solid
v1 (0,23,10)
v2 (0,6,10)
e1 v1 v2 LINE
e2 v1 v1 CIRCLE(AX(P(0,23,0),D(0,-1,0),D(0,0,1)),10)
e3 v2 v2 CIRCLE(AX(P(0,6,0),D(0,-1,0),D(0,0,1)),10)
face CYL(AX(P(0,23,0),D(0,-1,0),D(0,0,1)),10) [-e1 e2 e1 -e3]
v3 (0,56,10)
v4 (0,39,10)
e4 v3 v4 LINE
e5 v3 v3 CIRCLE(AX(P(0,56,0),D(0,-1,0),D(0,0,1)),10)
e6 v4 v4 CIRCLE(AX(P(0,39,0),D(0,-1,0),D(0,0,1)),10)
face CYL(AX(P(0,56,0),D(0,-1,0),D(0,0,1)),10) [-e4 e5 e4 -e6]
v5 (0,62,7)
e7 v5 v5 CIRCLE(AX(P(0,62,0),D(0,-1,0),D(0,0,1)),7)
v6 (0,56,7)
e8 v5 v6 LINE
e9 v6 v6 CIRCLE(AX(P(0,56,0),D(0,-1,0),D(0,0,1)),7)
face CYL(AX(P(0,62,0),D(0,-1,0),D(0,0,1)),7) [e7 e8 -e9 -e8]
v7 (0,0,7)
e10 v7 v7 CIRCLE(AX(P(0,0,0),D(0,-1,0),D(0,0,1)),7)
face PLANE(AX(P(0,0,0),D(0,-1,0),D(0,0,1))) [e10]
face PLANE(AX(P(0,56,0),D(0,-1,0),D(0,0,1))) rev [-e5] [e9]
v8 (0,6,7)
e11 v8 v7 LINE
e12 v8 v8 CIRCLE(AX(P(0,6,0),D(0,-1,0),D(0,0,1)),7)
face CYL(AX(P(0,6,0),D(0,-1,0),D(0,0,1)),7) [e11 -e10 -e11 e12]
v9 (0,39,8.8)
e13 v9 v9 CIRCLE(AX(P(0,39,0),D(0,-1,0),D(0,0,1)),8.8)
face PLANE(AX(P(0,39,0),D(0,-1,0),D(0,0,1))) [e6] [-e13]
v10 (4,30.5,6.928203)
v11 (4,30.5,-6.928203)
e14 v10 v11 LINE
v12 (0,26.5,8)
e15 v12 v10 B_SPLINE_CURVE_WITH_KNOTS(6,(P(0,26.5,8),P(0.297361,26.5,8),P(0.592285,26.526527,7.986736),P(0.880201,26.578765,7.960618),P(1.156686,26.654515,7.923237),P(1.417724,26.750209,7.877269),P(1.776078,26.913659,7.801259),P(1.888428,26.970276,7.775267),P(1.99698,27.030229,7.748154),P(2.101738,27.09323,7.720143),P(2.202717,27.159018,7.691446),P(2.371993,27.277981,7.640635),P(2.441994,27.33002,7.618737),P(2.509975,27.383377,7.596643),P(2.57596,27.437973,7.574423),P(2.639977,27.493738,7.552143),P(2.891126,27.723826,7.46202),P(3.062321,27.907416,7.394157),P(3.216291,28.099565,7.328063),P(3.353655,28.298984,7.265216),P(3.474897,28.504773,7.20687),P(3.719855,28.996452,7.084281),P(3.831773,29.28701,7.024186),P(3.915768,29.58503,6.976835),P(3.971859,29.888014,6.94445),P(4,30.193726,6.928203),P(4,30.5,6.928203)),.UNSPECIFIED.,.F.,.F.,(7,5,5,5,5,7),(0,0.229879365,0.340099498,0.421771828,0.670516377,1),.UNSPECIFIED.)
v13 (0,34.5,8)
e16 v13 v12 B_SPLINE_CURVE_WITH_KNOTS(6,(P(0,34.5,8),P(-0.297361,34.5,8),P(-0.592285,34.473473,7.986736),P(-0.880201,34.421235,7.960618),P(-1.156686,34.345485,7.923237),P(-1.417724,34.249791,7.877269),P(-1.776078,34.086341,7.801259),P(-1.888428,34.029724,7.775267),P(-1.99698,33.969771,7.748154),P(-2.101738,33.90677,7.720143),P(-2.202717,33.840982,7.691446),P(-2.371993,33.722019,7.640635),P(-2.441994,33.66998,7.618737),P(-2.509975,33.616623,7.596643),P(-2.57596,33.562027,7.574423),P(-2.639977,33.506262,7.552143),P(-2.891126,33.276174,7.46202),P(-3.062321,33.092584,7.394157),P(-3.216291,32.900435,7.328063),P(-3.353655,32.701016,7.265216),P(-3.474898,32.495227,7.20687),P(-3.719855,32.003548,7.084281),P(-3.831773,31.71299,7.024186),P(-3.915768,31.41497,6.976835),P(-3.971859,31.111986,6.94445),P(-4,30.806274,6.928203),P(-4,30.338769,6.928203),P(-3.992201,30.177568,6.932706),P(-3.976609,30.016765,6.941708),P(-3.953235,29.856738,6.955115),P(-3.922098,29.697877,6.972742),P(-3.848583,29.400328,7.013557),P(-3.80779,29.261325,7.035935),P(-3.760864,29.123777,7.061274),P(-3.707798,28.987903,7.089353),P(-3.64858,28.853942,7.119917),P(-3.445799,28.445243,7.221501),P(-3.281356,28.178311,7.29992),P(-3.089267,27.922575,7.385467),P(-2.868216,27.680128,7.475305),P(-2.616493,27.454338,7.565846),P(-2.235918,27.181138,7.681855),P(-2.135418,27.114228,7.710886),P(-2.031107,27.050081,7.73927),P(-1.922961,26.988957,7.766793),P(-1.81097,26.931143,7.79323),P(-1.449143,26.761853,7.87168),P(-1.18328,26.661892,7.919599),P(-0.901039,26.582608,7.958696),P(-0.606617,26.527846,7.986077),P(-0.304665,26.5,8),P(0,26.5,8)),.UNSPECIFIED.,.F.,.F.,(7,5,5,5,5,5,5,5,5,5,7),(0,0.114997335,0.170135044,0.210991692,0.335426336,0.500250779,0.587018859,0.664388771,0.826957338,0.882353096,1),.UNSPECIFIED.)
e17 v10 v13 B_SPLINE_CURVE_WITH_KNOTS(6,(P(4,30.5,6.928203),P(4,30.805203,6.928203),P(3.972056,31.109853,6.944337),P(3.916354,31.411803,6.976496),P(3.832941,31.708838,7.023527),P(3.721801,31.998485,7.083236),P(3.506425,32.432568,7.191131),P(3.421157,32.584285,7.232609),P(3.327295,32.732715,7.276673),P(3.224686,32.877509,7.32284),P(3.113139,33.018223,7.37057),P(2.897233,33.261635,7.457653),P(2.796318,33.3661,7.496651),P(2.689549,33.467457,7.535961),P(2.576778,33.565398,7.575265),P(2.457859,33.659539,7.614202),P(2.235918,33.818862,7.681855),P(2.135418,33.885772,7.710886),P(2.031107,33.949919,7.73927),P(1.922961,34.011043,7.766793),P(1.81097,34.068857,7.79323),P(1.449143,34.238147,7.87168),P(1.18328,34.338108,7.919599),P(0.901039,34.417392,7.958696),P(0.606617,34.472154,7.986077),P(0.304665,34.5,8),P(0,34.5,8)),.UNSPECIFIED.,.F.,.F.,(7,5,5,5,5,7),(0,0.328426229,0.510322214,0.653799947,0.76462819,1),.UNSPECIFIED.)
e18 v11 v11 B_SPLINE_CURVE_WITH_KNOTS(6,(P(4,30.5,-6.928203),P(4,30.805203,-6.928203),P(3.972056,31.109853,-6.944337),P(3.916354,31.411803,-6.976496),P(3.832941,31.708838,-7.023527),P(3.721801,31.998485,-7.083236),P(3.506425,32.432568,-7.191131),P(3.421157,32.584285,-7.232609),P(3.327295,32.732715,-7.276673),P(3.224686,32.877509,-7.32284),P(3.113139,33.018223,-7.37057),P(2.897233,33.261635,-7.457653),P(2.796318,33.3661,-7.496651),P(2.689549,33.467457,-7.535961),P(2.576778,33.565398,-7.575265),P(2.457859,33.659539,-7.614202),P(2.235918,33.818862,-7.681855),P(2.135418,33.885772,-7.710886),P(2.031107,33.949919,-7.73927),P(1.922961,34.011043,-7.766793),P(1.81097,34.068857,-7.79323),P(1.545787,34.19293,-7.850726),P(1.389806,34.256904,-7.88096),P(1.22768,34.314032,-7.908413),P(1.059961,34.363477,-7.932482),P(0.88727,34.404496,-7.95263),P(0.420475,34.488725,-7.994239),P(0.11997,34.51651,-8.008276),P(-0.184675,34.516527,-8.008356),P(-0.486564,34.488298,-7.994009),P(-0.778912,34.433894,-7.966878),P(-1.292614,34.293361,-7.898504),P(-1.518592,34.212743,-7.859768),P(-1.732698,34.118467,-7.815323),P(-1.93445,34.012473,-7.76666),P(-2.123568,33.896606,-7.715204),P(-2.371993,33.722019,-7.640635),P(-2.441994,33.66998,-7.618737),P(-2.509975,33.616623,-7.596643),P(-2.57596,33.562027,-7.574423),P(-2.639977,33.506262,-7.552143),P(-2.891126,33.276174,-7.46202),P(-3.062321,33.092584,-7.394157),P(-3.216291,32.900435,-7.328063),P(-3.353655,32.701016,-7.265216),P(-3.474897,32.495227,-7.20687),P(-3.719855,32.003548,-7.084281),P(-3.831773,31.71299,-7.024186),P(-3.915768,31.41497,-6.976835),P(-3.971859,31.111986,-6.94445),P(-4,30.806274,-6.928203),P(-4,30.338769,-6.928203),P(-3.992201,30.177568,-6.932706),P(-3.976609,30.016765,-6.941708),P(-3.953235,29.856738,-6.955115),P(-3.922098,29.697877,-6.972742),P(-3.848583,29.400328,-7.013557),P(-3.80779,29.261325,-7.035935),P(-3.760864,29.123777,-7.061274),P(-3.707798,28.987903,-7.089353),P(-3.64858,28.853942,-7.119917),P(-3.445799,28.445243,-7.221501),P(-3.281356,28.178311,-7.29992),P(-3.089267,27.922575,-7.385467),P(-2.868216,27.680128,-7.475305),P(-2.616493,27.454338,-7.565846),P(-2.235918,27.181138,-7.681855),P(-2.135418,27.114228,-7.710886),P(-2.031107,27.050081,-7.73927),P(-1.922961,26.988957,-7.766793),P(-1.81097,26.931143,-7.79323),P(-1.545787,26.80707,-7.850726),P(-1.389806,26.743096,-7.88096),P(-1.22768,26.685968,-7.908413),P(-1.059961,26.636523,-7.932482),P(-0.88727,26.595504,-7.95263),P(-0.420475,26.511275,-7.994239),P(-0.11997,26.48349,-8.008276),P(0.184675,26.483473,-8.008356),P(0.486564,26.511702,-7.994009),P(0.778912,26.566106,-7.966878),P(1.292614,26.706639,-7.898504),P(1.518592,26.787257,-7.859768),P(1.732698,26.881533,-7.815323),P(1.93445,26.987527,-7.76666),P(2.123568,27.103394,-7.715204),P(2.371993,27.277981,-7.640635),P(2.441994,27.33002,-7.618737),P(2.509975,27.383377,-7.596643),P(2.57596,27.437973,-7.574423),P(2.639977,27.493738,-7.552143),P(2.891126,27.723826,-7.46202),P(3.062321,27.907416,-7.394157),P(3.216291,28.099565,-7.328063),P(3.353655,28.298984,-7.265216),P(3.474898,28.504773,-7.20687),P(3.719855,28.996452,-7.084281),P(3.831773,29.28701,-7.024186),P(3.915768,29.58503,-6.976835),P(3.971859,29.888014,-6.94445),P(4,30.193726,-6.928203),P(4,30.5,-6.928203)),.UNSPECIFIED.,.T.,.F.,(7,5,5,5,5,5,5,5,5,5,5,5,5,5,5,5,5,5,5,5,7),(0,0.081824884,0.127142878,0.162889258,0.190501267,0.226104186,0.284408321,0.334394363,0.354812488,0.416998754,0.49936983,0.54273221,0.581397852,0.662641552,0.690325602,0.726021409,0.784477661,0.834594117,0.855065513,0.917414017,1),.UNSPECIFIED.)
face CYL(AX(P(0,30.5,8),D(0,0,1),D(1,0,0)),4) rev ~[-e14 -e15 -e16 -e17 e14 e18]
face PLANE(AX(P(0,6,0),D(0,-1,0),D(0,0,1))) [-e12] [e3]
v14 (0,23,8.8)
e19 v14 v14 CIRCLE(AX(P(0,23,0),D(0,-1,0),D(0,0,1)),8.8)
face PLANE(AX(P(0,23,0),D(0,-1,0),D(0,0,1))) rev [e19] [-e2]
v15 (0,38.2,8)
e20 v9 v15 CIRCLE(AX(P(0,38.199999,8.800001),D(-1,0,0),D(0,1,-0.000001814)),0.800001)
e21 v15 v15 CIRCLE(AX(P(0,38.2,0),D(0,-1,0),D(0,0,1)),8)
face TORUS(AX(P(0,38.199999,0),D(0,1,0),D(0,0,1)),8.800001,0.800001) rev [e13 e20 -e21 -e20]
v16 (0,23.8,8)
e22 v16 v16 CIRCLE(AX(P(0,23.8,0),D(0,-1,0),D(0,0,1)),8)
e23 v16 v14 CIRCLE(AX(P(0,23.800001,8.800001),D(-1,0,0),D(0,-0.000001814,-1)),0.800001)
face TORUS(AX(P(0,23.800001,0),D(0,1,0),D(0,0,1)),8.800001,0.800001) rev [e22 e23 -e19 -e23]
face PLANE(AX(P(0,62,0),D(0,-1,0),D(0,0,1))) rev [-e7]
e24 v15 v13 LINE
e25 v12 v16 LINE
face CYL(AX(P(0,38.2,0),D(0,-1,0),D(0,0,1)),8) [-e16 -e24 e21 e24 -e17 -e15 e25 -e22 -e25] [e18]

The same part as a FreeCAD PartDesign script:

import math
import FreeCAD as App
import Part
import Sketcher
from FreeCAD import Vector
Q = App.Units.Quantity

doc = App.newDocument("Part")
params = doc.addObject("Spreadsheet::Sheet", "Params")
for row, (alias, value) in enumerate([
    ("sketch1_radius", "0.800001 mm"),
    ("sketch1_width", "62 mm"),
    ("sketch1_width2", "6 mm"),
    ("sketch1_width3", "17 mm"),
    ("sketch1_height", "7 mm"),
    ("revolution_angle", "360 deg"),
    ("sketch2_diameter", "8 mm"),
], start=1):
    params.set(f"A{row}", alias)
    params.set(f"B{row}", "=" + value)
    params.setAlias(f"B{row}", alias)

body = doc.addObject("PartDesign::Body", "Body")

sketch1 = doc.addObject("Sketcher::SketchObject", "Sketch")
body.addObject(sketch1)
sketch1.AttachmentSupport = (doc.YZ_Plane, [""])
sketch1.MapMode = "FlatFace"
sketch1.addGeometry([
    Part.LineSegment(Vector(0, 7, 0), Vector(0, 0, 0)),
    Part.LineSegment(Vector(0, 0, 0), Vector(62, 0, 0)),
    Part.LineSegment(Vector(62, 0, 0), Vector(62, 7, 0)),
    Part.LineSegment(Vector(62, 7, 0), Vector(56, 7, 0)),
    Part.LineSegment(Vector(56, 7, 0), Vector(56, 10, 0)),
    Part.LineSegment(Vector(56, 10, 0), Vector(39, 10, 0)),
    Part.LineSegment(Vector(39, 10, 0), Vector(39, 8.8, 0)),
    Part.ArcOfCircle(Part.Circle(Vector(38.2, 8.8, 0), Vector(0, 0, 1), 0.8), math.radians(-90), math.radians(0)),
    Part.LineSegment(Vector(38.2, 8, 0), Vector(23.8, 8, 0)),
    Part.ArcOfCircle(Part.Circle(Vector(23.8, 8.8, 0), Vector(0, 0, 1), 0.8), math.radians(-180), math.radians(-90)),
    Part.LineSegment(Vector(23, 8.8, 0), Vector(23, 10, 0)),
    Part.LineSegment(Vector(23, 10, 0), Vector(6, 10, 0)),
    Part.LineSegment(Vector(6, 10, 0), Vector(6, 7, 0)),
    Part.LineSegment(Vector(6, 7, 0), Vector(0, 7, 0)),
], False)
sketch1.addConstraint([
    Sketcher.Constraint("Coincident", 0, 2, 1, 1),
    Sketcher.Constraint("Coincident", 1, 2, 2, 1),
    Sketcher.Constraint("Coincident", 2, 2, 3, 1),
    Sketcher.Constraint("Coincident", 3, 2, 4, 1),
    Sketcher.Constraint("Coincident", 4, 2, 5, 1),
    Sketcher.Constraint("Coincident", 5, 2, 6, 1),
    Sketcher.Constraint("Tangent", 6, 2, 7, 2),
    Sketcher.Constraint("Tangent", 7, 1, 8, 1),
    Sketcher.Constraint("Tangent", 8, 2, 9, 2),
    Sketcher.Constraint("Tangent", 9, 1, 10, 1),
    Sketcher.Constraint("Coincident", 10, 2, 11, 1),
    Sketcher.Constraint("Coincident", 11, 2, 12, 1),
    Sketcher.Constraint("Coincident", 12, 2, 13, 1),
    Sketcher.Constraint("Coincident", 13, 2, 0, 1),
    Sketcher.Constraint("Vertical", 0),
    Sketcher.Constraint("Horizontal", 1),
    Sketcher.Constraint("Vertical", 2),
    Sketcher.Constraint("Horizontal", 3),
    Sketcher.Constraint("Vertical", 4),
    Sketcher.Constraint("Horizontal", 5),
    Sketcher.Constraint("Vertical", 6),
    Sketcher.Constraint("Horizontal", 8),
    Sketcher.Constraint("Vertical", 10),
    Sketcher.Constraint("Horizontal", 11),
    Sketcher.Constraint("Vertical", 12),
    Sketcher.Constraint("Horizontal", 13),
    Sketcher.Constraint("Coincident", 0, 2, -1, 1),
    Sketcher.Constraint("Equal", 7, 9),
    Sketcher.Constraint("Horizontal", 5, 2, 10, 2),
    Sketcher.Constraint("Horizontal", 3, 2, 12, 2),
    Sketcher.Constraint("Equal", 5, 11),
    Sketcher.Constraint("Equal", 3, 13),
    Sketcher.Constraint("Radius", 7, Q("0.800001 mm")),
    Sketcher.Constraint("DistanceX", 1, 1, 1, 2, Q("62 mm")),
    Sketcher.Constraint("DistanceX", 3, 2, 3, 1, Q("6 mm")),
    Sketcher.Constraint("DistanceX", 5, 2, 5, 1, Q("17 mm")),
    Sketcher.Constraint("DistanceY", 0, 2, 0, 1, Q("7 mm")),
    Sketcher.Constraint("DistanceY", 4, 1, 4, 2, Q("3 mm")),
    Sketcher.Constraint("DistanceY", 6, 2, 6, 1, Q("1.2 mm")),
])
sketch1.setExpression("Constraints[32]", "Params.sketch1_radius")
sketch1.setExpression("Constraints[33]", "Params.sketch1_width")
sketch1.setExpression("Constraints[34]", "Params.sketch1_width2")
sketch1.setExpression("Constraints[35]", "Params.sketch1_width3")
sketch1.setExpression("Constraints[36]", "Params.sketch1_height")
revolution = doc.addObject("PartDesign::Revolution", "Revolution")
body.addObject(revolution)
revolution.Profile = sketch1
revolution.ReferenceAxis = (sketch1, ["H_Axis"])
revolution.setExpression("Angle", "Params.revolution_angle")

sketch2 = doc.addObject("Sketcher::SketchObject", "Sketch001")
body.addObject(sketch2)
sketch2.AttachmentSupport = (doc.XY_Plane, [""])
sketch2.MapMode = "FlatFace"
sketch2.AttachmentOffset = App.Placement(Vector(0, 0, 8), App.Rotation())
sketch2.addGeometry(Part.Circle(Vector(0, 30.5, 0), Vector(0, 0, 1), 4), False)
sketch2.addConstraint([
    Sketcher.Constraint("PointOnObject", 0, 3, -2),
    Sketcher.Constraint("Diameter", 0, Q("8 mm")),
    Sketcher.Constraint("DistanceY", -1, 1, 0, 3, Q("30.5 mm")),
])
sketch2.setExpression("Constraints[1]", "Params.sketch2_diameter")
pocket1 = doc.addObject("PartDesign::Pocket", "Pocket")
body.addObject(pocket1)
pocket1.Profile = sketch2
pocket1.Type = "ThroughAll"

doc.recompute()
